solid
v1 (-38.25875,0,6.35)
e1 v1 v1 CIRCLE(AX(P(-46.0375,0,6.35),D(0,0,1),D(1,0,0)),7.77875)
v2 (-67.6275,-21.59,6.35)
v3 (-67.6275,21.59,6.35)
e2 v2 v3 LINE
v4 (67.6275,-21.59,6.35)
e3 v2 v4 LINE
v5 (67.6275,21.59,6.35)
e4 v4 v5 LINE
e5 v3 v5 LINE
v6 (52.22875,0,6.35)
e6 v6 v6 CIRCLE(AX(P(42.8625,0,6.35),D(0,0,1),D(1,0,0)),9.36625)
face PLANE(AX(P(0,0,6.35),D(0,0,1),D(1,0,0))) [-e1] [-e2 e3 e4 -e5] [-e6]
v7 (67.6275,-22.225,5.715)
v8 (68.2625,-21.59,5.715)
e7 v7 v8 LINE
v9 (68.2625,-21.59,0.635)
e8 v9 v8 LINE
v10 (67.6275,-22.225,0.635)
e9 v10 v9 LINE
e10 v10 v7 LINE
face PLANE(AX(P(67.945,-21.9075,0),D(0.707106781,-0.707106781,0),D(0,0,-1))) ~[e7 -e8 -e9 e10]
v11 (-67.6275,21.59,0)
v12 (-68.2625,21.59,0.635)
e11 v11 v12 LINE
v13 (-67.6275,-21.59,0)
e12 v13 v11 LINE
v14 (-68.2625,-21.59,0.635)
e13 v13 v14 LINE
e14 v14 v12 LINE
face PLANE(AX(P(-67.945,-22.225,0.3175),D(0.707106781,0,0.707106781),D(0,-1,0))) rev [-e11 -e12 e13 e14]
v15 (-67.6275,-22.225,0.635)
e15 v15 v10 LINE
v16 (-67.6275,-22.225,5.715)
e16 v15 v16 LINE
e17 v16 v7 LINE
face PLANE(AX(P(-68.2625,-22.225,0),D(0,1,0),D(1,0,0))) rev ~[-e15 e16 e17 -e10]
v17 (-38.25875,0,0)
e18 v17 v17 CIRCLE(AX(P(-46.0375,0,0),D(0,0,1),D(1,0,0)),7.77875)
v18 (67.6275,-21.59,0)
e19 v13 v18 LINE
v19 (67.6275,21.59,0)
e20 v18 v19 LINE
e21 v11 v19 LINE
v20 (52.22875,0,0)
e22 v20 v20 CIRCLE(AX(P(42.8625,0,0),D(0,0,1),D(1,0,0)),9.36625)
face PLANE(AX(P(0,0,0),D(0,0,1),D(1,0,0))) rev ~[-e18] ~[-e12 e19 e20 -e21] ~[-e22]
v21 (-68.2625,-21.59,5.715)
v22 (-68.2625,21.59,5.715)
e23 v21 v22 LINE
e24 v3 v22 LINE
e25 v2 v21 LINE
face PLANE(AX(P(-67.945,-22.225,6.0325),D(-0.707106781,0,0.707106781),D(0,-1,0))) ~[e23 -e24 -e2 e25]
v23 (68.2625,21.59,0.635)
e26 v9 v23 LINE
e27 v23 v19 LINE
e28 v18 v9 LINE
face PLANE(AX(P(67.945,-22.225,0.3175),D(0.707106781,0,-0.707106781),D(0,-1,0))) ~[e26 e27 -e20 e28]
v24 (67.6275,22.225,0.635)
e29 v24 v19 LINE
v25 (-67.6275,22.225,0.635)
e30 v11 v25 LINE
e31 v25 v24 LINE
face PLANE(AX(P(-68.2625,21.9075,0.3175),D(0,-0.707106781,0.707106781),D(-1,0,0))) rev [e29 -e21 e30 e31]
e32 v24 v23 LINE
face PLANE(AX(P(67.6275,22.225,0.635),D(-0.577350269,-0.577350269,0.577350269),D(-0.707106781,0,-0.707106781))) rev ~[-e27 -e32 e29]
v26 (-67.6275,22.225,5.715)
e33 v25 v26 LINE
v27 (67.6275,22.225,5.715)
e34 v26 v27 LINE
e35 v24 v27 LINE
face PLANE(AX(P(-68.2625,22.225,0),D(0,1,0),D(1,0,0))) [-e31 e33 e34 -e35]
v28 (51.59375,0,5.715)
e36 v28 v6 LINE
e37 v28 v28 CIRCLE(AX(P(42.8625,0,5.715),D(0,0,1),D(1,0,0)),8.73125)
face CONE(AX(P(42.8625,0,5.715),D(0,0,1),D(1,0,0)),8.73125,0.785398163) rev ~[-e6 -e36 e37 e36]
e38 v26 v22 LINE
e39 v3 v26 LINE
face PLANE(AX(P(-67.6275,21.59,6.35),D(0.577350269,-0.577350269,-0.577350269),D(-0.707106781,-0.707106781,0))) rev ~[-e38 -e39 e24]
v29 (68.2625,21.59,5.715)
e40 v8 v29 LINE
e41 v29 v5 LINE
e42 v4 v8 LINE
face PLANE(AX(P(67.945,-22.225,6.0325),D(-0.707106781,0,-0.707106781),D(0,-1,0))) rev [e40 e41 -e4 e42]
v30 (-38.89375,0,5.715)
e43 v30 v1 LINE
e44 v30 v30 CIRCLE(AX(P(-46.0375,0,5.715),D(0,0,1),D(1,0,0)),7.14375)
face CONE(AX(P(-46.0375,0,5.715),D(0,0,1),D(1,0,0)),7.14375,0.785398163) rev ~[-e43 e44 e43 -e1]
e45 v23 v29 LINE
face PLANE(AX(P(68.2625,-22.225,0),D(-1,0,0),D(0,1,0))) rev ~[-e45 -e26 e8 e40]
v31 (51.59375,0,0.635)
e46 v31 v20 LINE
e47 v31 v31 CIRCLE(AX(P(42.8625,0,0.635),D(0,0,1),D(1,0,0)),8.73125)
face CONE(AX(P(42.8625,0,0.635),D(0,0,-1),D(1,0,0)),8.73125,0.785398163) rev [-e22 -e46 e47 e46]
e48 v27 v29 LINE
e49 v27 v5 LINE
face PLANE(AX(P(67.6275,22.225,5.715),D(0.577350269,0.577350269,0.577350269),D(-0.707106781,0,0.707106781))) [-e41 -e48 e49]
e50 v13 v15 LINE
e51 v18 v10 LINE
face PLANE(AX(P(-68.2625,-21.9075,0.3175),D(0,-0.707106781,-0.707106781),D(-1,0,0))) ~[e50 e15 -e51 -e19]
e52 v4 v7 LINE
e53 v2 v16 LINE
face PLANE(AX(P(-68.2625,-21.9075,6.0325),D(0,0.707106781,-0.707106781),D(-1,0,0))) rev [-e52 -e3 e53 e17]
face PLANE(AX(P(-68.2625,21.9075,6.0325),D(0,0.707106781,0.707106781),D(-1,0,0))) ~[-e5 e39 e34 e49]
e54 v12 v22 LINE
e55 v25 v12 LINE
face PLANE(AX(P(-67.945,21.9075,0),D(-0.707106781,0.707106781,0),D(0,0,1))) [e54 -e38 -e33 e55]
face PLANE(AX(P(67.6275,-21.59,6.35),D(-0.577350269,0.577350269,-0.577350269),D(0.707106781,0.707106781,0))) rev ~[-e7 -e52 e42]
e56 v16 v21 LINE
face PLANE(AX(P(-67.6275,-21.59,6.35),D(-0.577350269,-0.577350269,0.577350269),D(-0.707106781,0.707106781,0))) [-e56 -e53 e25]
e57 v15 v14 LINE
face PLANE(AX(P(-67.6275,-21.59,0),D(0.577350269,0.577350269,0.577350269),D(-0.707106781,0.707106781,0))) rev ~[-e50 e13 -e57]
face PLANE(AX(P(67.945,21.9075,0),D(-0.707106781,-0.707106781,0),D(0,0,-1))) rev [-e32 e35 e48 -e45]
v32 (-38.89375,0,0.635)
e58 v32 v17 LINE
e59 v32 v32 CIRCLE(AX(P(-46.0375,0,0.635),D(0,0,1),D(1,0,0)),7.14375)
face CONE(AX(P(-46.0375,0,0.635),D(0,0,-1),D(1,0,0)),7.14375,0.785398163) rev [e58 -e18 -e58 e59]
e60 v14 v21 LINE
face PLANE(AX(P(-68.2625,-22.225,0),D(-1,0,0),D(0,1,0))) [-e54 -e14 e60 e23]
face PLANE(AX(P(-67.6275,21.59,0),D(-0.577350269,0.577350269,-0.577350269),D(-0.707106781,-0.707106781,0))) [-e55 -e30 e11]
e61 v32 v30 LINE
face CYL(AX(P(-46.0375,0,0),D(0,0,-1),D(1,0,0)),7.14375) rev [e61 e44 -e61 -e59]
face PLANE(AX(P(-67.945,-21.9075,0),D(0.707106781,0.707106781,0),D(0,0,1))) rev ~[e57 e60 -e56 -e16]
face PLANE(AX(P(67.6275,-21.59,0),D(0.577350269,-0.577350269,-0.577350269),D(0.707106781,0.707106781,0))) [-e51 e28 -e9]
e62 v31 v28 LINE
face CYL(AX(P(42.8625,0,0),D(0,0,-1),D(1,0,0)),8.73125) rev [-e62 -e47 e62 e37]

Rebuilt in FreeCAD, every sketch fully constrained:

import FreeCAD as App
import Part
import Sketcher

V = App.Vector
Q = App.Units.Quantity

doc = App.newDocument("Part")
body = doc.addObject("PartDesign::Body", "Body")

sketch1 = body.newObject("Sketcher::SketchObject", "Sketch")
sketch1.AttachmentSupport = (doc.getObject("XY_Plane"), [""])
sketch1.MapMode = "FlatFace"
sketch1.addGeometry([
    Part.LineSegment(V(-68, 22, 0), V(-68, -22, 0)),
    Part.LineSegment(V(-68, -22, 0), V(68, -22, 0)),
    Part.LineSegment(V(68, -22, 0), V(68, 22, 0)),
    Part.LineSegment(V(68, 22, 0), V(-68, 22, 0)),
    Part.Circle(V(-46, 0, 0), V(0, 0, 1), 7),
    Part.Circle(V(43, 0, 0), V(0, 0, 1), 9),
], False)
sketch1.addConstraint([
    Sketcher.Constraint("Coincident", 0, 2, 1, 1),
    Sketcher.Constraint("Coincident", 1, 2, 2, 1),
    Sketcher.Constraint("Coincident", 2, 2, 3, 1),
    Sketcher.Constraint("Coincident", 3, 2, 0, 1),
    Sketcher.Constraint("Vertical", 0),
    Sketcher.Constraint("Horizontal", 1),
    Sketcher.Constraint("Vertical", 2),
    Sketcher.Constraint("Horizontal", 3),
    Sketcher.Constraint("Symmetric", 0, 2, 2, 2, -1, 1),
    Sketcher.Constraint("PointOnObject", 4, 3, -1),
    Sketcher.Constraint("PointOnObject", 5, 3, -1),
    Sketcher.Constraint("Diameter", 4, Q("0.5625 in")),
    Sketcher.Constraint("Diameter", 5, Q("0.6875 in")),
    Sketcher.Constraint("DistanceX", 5, 3, 1, 2, Q("1 in")),
    Sketcher.Constraint("DistanceY", 0, 2, 0, 1, Q("1.75 in")),
    Sketcher.Constraint("DistanceX", 4, 3, 5, 3, Q("3.5 in")),
    Sketcher.Constraint("DistanceX", 1, 1, 1, 2, Q("5.375 in")),
])
pad1 = body.newObject("PartDesign::Pad", "Pad")
pad1.Profile = sketch1
pad1.Length = Q("0.25 in")
doc.recompute()

chamfer = body.newObject("PartDesign::Chamfer", "Chamfer")
chamfer.Base = (pad1, ["Edge1"])
chamfer.UseAllEdges = True
chamfer.Size = Q("0.025 in")

doc.recompute()
